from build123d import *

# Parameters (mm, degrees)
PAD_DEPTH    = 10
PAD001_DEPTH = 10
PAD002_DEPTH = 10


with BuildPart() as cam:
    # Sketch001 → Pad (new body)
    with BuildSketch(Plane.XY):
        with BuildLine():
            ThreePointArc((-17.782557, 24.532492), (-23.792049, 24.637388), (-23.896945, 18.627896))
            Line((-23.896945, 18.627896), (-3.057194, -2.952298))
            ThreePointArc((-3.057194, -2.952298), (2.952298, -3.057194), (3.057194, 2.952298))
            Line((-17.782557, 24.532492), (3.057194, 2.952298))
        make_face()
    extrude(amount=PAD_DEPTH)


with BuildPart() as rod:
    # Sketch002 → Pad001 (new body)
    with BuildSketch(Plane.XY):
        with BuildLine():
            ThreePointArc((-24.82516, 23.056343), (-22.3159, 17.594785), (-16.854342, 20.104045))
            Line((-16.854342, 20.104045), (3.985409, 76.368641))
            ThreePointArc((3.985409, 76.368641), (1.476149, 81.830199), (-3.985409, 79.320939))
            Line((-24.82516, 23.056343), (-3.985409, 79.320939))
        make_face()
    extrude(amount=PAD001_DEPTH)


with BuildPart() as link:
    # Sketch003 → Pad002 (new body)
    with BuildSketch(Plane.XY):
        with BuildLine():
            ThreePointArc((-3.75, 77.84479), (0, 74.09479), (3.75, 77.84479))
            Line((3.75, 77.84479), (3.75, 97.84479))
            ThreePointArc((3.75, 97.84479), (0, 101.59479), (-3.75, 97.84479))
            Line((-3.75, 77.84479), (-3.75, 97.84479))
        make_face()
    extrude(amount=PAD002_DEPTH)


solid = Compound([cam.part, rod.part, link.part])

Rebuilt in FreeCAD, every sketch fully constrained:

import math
import FreeCAD as App
import Part
import Sketcher

V = App.Vector
Q = App.Units.Quantity

doc = App.newDocument("Part")
body = doc.addObject("PartDesign::Body", "Body")

# Sketch on XY plane
sketch1 = body.newObject("Sketcher::SketchObject", "Sketch")
sketch1.AttachmentSupport = (doc.getObject("XY_Plane"), [""])
sketch1.MapMode = "FlatFace"
sketch1.addGeometry(Part.ArcOfCircle(Part.Circle(V(-20.8, 21.6, 0), V(0, 0, 1), 4.2), math.radians(44), math.radians(224)), False)
sketch1.addGeometry(Part.LineSegment(V(-23.9, 18.6, 0), V(-3.1, -3, 0)), False)
sketch1.addGeometry(Part.ArcOfCircle(Part.Circle(V(0, 0, 0), V(0, 0, 1), 4.2), math.radians(-136), math.radians(44)), False)
sketch1.addGeometry(Part.LineSegment(V(3.1, 3, 0), V(-17.8, 24.5, 0)), False)
sketch1.addConstraint(Sketcher.Constraint("Tangent", 0, 2, 1, 1))
sketch1.addConstraint(Sketcher.Constraint("Tangent", 1, 2, 2, 1))
sketch1.addConstraint(Sketcher.Constraint("Tangent", 2, 2, 3, 1))
sketch1.addConstraint(Sketcher.Constraint("Tangent", 3, 2, 0, 1))
sketch1.addConstraint(Sketcher.Constraint("Coincident", 2, 3, -1, 1))
sketch1.addConstraint(Sketcher.Constraint("Equal", 0, 2))
sketch1.addConstraint(Sketcher.Constraint("Angle", 1, Q("-46 deg")))
sketch1.addConstraint(Sketcher.Constraint("Radius", 0, 4.25))
sketch1.addConstraint(Sketcher.Constraint("Distance", 1, 30.0))
pad1 = body.newObject("PartDesign::Pad", "Pad")
pad1.Profile = sketch1
pad1.Length = 10
body2 = doc.addObject("PartDesign::Body", "Body001")

# Sketch on XY plane
sketch2 = body2.newObject("Sketcher::SketchObject", "Sketch001")
sketch2.AttachmentSupport = (doc.getObject("XY_Plane001"), [""])
sketch2.MapMode = "FlatFace"
sketch2.addGeometry(Part.ArcOfCircle(Part.Circle(V(-20.8, 21.6, 0), V(0, 0, 1), 4.3), math.radians(160), math.radians(340)), False)
sketch2.addGeometry(Part.LineSegment(V(-16.9, 20.1, 0), V(4, 76.4, 0)), False)
sketch2.addGeometry(Part.ArcOfCircle(Part.Circle(V(0, 77.8, 0), V(0, 0, 1), 4.3), math.radians(-20), math.radians(160)), False)
sketch2.addGeometry(Part.LineSegment(V(-4, 79.3, 0), V(-24.8, 23.1, 0)), False)
sketch2.addConstraint(Sketcher.Constraint("Tangent", 0, 2, 1, 1))
sketch2.addConstraint(Sketcher.Constraint("Tangent", 1, 2, 2, 1))
sketch2.addConstraint(Sketcher.Constraint("Tangent", 2, 2, 3, 1))
sketch2.addConstraint(Sketcher.Constraint("Tangent", 3, 2, 0, 1))
sketch2.addConstraint(Sketcher.Constraint("Equal", 0, 2))
sketch2.addConstraint(Sketcher.Constraint("PointOnObject", 2, 3, -2))
sketch2.addConstraint(Sketcher.Constraint("Radius", 0, 4.25))
sketch2.addConstraint(Sketcher.Constraint("Distance", 1, 60.0))
sketch2.addConstraint(Sketcher.Constraint("DistanceX", 0, 3, -1, 1, 20.839751))
sketch2.addConstraint(Sketcher.Constraint("DistanceY", -1, 1, 2, 3, 77.84479))
pad2 = body2.newObject("PartDesign::Pad", "Pad001")
pad2.Profile = sketch2
pad2.Length = 10
body3 = doc.addObject("PartDesign::Body", "Body002")

# Sketch on XY plane
sketch3 = body3.newObject("Sketcher::SketchObject", "Sketch002")
sketch3.AttachmentSupport = (doc.getObject("XY_Plane002"), [""])
sketch3.MapMode = "FlatFace"
sketch3.addGeometry(Part.ArcOfCircle(Part.Circle(V(0, 77.8, 0), V(0, 0, 1), 3.8), math.radians(180), math.radians(360)), False)
sketch3.addGeometry(Part.LineSegment(V(3.8, 77.8, 0), V(3.8, 97.8, 0)), False)
sketch3.addGeometry(Part.ArcOfCircle(Part.Circle(V(0, 97.8, 0), V(0, 0, 1), 3.8), math.radians(0), math.radians(180)), False)
sketch3.addGeometry(Part.LineSegment(V(-3.8, 97.8, 0), V(-3.8, 77.8, 0)), False)
sketch3.addConstraint(Sketcher.Constraint("Tangent", 0, 2, 1, 1))
sketch3.addConstraint(Sketcher.Constraint("Tangent", 1, 2, 2, 1))
sketch3.addConstraint(Sketcher.Constraint("Tangent", 2, 2, 3, 1))
sketch3.addConstraint(Sketcher.Constraint("Tangent", 3, 2, 0, 1))
sketch3.addConstraint(Sketcher.Constraint("Vertical", 1))
sketch3.addConstraint(Sketcher.Constraint("Vertical", 3))
sketch3.addConstraint(Sketcher.Constraint("PointOnObject", 0, 3, -2))
sketch3.addConstraint(Sketcher.Constraint("DistanceY", 1, 1, 1, 2, 20.0))
sketch3.addConstraint(Sketcher.Constraint("Radius", 0, 3.75))
sketch3.addConstraint(Sketcher.Constraint("DistanceY", -1, 1, 0, 3, 77.84479))
pad3 = body3.newObject("PartDesign::Pad", "Pad002")
pad3.Profile = sketch3
pad3.Length = 10

doc.recompute()
